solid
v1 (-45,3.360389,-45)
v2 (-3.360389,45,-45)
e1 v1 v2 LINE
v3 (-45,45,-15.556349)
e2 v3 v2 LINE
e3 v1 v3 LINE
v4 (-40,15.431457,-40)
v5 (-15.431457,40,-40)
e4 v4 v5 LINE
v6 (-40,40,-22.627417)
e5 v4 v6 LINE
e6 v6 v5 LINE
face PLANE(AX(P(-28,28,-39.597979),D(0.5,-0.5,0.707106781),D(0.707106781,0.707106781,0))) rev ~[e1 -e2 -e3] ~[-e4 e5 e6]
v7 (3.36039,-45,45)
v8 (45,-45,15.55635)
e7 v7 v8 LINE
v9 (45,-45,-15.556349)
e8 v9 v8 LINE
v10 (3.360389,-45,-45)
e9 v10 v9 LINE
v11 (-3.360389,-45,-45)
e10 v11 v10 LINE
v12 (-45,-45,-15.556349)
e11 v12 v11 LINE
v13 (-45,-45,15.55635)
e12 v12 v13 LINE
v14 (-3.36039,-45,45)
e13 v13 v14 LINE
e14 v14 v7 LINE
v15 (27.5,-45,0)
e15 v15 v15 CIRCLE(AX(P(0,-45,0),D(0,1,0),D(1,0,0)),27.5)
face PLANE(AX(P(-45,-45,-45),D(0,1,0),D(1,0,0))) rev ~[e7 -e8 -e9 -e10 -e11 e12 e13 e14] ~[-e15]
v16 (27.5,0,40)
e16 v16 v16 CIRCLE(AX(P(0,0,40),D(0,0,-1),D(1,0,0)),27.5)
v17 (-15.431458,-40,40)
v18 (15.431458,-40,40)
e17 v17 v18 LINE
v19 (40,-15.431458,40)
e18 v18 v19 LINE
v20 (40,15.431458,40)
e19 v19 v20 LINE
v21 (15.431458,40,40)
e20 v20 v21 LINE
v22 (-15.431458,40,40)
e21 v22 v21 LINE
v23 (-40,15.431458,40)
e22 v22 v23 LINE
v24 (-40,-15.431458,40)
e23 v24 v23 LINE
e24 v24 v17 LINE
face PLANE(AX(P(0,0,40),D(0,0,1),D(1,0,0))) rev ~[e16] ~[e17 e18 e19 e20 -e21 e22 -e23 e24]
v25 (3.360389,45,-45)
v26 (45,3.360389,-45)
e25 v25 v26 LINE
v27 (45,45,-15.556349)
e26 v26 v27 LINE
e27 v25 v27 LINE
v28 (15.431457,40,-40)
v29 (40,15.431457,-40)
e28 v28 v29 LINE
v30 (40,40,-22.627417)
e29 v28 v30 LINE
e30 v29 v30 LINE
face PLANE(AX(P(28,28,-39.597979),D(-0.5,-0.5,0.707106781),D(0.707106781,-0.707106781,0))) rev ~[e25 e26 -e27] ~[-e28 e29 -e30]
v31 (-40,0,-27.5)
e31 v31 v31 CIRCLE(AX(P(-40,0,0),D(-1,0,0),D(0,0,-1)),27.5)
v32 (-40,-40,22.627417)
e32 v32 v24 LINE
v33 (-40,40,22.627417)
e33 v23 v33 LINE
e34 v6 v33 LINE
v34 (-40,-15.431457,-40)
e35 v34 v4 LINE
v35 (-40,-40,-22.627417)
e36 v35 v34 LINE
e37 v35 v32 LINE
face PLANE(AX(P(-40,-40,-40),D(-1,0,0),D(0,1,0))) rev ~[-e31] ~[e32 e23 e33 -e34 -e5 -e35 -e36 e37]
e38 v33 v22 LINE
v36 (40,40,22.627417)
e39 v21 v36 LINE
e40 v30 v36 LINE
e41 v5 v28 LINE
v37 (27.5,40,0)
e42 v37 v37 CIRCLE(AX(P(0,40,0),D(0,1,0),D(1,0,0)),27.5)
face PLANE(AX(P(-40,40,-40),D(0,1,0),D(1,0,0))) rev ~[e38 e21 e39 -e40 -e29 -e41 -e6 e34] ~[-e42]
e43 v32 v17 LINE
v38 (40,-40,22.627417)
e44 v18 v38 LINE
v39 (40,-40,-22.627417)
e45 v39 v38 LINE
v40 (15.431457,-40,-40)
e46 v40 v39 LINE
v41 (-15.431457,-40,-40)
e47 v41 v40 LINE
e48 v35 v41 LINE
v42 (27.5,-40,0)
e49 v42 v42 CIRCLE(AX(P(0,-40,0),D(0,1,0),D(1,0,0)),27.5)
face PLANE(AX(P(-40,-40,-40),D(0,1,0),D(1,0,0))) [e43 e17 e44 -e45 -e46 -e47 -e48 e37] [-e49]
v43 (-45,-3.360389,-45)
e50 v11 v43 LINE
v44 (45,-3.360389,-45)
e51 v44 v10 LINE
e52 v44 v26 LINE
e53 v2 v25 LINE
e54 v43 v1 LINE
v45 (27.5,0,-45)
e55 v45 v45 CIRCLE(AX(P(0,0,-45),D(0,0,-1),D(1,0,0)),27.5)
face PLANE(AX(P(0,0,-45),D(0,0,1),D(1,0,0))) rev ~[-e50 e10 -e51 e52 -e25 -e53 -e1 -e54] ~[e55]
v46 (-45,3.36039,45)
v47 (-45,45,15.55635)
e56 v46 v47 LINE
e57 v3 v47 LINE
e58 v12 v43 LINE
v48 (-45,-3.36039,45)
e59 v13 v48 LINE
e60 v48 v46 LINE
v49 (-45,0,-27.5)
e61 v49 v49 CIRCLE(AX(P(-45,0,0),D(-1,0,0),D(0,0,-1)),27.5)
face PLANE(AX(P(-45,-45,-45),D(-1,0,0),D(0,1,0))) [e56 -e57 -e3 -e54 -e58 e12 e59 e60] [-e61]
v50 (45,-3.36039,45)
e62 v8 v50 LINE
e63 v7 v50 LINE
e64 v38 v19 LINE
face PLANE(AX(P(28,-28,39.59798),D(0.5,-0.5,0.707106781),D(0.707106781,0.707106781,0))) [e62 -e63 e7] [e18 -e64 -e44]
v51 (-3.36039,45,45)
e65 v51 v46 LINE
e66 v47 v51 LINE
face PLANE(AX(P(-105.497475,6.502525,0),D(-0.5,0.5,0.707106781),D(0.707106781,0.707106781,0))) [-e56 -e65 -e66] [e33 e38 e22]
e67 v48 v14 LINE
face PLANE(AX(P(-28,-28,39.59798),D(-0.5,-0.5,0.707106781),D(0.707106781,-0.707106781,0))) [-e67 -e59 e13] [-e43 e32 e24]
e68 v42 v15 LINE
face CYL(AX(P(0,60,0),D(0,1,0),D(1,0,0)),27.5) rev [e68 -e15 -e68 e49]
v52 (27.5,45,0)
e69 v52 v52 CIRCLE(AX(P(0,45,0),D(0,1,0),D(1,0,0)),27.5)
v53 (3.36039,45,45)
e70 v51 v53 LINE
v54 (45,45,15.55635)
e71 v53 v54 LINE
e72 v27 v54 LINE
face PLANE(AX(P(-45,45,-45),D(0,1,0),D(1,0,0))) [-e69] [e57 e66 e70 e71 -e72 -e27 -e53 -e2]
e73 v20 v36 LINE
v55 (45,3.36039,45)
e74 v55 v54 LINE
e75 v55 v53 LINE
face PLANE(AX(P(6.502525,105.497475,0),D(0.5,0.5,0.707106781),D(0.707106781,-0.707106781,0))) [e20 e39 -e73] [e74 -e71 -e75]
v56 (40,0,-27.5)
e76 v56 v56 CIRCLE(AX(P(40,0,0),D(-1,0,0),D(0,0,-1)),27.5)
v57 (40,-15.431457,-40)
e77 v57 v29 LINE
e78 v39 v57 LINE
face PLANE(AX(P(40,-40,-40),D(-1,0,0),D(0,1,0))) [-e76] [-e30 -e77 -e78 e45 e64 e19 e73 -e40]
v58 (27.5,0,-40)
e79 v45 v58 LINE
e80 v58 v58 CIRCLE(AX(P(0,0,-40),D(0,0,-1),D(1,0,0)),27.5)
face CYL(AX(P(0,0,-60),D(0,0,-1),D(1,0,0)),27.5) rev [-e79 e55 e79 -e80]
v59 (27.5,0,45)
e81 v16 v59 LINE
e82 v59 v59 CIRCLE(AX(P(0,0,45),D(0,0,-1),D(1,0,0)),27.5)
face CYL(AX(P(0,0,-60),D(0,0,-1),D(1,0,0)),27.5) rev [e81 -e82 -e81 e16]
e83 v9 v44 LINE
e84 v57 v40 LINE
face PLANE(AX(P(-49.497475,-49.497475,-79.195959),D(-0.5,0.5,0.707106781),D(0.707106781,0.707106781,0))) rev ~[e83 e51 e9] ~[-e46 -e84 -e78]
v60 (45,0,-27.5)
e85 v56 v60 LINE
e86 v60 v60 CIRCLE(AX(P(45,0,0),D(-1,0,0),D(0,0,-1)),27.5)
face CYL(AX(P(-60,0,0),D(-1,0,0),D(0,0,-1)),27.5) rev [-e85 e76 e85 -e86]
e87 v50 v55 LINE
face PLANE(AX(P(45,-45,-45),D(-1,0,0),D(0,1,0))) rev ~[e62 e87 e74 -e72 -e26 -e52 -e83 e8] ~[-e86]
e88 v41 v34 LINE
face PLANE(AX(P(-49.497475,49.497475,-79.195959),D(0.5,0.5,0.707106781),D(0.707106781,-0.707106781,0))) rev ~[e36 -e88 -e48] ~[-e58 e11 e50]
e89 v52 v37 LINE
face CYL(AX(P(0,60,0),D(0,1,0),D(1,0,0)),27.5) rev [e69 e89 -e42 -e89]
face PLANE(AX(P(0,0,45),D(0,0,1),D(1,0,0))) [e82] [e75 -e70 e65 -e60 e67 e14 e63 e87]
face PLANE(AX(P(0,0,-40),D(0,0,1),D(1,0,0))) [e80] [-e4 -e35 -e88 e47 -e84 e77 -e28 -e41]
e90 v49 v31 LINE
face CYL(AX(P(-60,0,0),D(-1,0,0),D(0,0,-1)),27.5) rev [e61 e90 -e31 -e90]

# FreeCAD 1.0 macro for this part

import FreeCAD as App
import Part
import Sketcher

V = App.Vector
Q = App.Units.Quantity

doc = App.newDocument("Part")
body = doc.addObject("PartDesign::Body", "Body")

# Sketch on XY plane
sketch1 = doc.addObject("Sketcher::SketchObject", "Sketch")
body.addObject(sketch1)
sketch1.AttachmentSupport = (doc.XY_Plane, [""])
sketch1.MapMode = "FlatFace"
sketch1.addGeometry([
    Part.LineSegment(V(0, 112, 0), V(0, 0, 0)),
    Part.LineSegment(V(0, 0, 0), V(140, 0, 0)),
    Part.LineSegment(V(140, 0, 0), V(140, 112, 0)),
    Part.LineSegment(V(140, 112, 0), V(0, 112, 0)),
], False)
sketch1.addConstraint([
    Sketcher.Constraint("Coincident", 0, 2, 1, 1),
    Sketcher.Constraint("Coincident", 1, 2, 2, 1),
    Sketcher.Constraint("Coincident", 2, 2, 3, 1),
    Sketcher.Constraint("Coincident", 3, 2, 0, 1),
    Sketcher.Constraint("Vertical", 0),
    Sketcher.Constraint("Horizontal", 1),
    Sketcher.Constraint("Vertical", 2),
    Sketcher.Constraint("Horizontal", 3),
    Sketcher.Constraint("Coincident", 0, 2, -1, 1),
    Sketcher.Constraint("DistanceX", 1, 1, 1, 2, Q("140 mm")),
    Sketcher.Constraint("DistanceY", 0, 2, 0, 1, Q("112 mm")),
])
pad1 = doc.addObject("PartDesign::Pad", "Pad")
body.addObject(pad1)
pad1.Profile = sketch1
pad1.Length = 112
body2 = doc.addObject("PartDesign::Body", "Body001")
doc.recompute()

body.Placement = App.Placement(V(0, 0, 0), App.Rotation(V(1, 0, 0), 45))
boolean = doc.addObject("PartDesign::Boolean", "Boolean")
body2.addObject(boolean)
boolean.Type = "Fuse"
boolean.addObjects([body])
body3 = doc.addObject("PartDesign::Body", "Body002")
doc.recompute()

body2.Placement = App.Placement(V(-49.497475, 49.497475, -79.195959), App.Rotation(V(0, 0, 1), 315))
boolean2 = doc.addObject("PartDesign::Boolean", "Boolean001")
body3.addObject(boolean2)
boolean2.Type = "Fuse"
boolean2.addObjects([body2])
body4 = doc.addObject("PartDesign::Body", "Body003")

# Sketch on XY plane
sketch2 = doc.addObject("Sketcher::SketchObject", "Sketch001")
body4.addObject(sketch2)
sketch2.AttachmentSupport = (doc.getObject("XY_Plane003"), [""])
sketch2.MapMode = "FlatFace"
sketch2.addGeometry([
    Part.LineSegment(V(0, 180, 0), V(0, 0, 0)),
    Part.LineSegment(V(0, 0, 0), V(180, 0, 0)),
    Part.LineSegment(V(180, 0, 0), V(180, 180, 0)),
    Part.LineSegment(V(180, 180, 0), V(0, 180, 0)),
], False)
sketch2.addConstraint([
    Sketcher.Constraint("Coincident", 0, 2, 1, 1),
    Sketcher.Constraint("Coincident", 1, 2, 2, 1),
    Sketcher.Constraint("Coincident", 2, 2, 3, 1),
    Sketcher.Constraint("Coincident", 3, 2, 0, 1),
    Sketcher.Constraint("Vertical", 0),
    Sketcher.Constraint("Horizontal", 1),
    Sketcher.Constraint("Vertical", 2),
    Sketcher.Constraint("Horizontal", 3),
    Sketcher.Constraint("Coincident", 0, 2, -1, 1),
    Sketcher.Constraint("Equal", 3, 0),
    Sketcher.Constraint("DistanceX", 1, 1, 1, 2, Q("180 mm")),
])
pad2 = doc.addObject("PartDesign::Pad", "Pad001")
body4.addObject(pad2)
pad2.Profile = sketch2
pad2.Length = 180
body5 = doc.addObject("PartDesign::Body", "Body004")
doc.recompute()

body4.Placement = App.Placement(V(0, 0, 0), App.Rotation(V(1, 0, 0), 45))
boolean3 = doc.addObject("PartDesign::Boolean", "Boolean002")
body5.addObject(boolean3)
boolean3.Type = "Fuse"
boolean3.addObjects([body4])
body6 = doc.addObject("PartDesign::Body", "Body005")
doc.recompute()

body5.Placement = App.Placement(V(-63.63961, 63.63961, -127.279221), App.Rotation(V(0, 0, 1), 315))
boolean4 = doc.addObject("PartDesign::Boolean", "Boolean003")
body6.addObject(boolean4)
boolean4.Type = "Fuse"
boolean4.addObjects([body5])
doc.recompute()

boolean5 = doc.addObject("PartDesign::Boolean", "Boolean004")
body6.addObject(boolean5)
boolean5.Type = "Cut"
boolean5.addObjects([body3])
body7 = doc.addObject("PartDesign::Body", "Body006")

# Sketch on XY plane
sketch3 = doc.addObject("Sketcher::SketchObject", "Sketch002")
body7.addObject(sketch3)
sketch3.AttachmentSupport = (doc.getObject("XY_Plane006"), [""])
sketch3.MapMode = "FlatFace"
sketch3.addGeometry([
    Part.LineSegment(V(0, 112, 0), V(0, 0, 0)),
    Part.LineSegment(V(0, 0, 0), V(140, 0, 0)),
    Part.LineSegment(V(140, 0, 0), V(140, 112, 0)),
    Part.LineSegment(V(140, 112, 0), V(0, 112, 0)),
], False)
sketch3.addConstraint([
    Sketcher.Constraint("Coincident", 0, 2, 1, 1),
    Sketcher.Constraint("Coincident", 1, 2, 2, 1),
    Sketcher.Constraint("Coincident", 2, 2, 3, 1),
    Sketcher.Constraint("Coincident", 3, 2, 0, 1),
    Sketcher.Constraint("Vertical", 0),
    Sketcher.Constraint("Horizontal", 1),
    Sketcher.Constraint("Vertical", 2),
    Sketcher.Constraint("Horizontal", 3),
    Sketcher.Constraint("Coincident", 0, 2, -1, 1),
    Sketcher.Constraint("DistanceX", 1, 1, 1, 2, Q("140 mm")),
    Sketcher.Constraint("DistanceY", 0, 2, 0, 1, Q("112 mm")),
])
pad3 = doc.addObject("PartDesign::Pad", "Pad002")
body7.addObject(pad3)
pad3.Profile = sketch3
pad3.Length = 112
body8 = doc.addObject("PartDesign::Body", "Body007")
doc.recompute()

body7.Placement = App.Placement(V(0, 0, 0), App.Rotation(V(1, 0, 0), 45))
boolean6 = doc.addObject("PartDesign::Boolean", "Boolean005")
body8.addObject(boolean6)
boolean6.Type = "Fuse"
boolean6.addObjects([body7])
body9 = doc.addObject("PartDesign::Body", "Body008")
doc.recompute()

body8.Placement = App.Placement(V(-49.497475, -49.497475, -79.195959), App.Rotation(V(0, 0, 1), 45))
boolean7 = doc.addObject("PartDesign::Boolean", "Boolean006")
body9.addObject(boolean7)
boolean7.Type = "Fuse"
boolean7.addObjects([body8])
body10 = doc.addObject("PartDesign::Body", "Body009")

# Sketch on XY plane
sketch4 = doc.addObject("Sketcher::SketchObject", "Sketch003")
body10.addObject(sketch4)
sketch4.AttachmentSupport = (doc.getObject("XY_Plane009"), [""])
sketch4.MapMode = "FlatFace"
sketch4.addGeometry([
    Part.LineSegment(V(0, 180, 0), V(0, 0, 0)),
    Part.LineSegment(V(0, 0, 0), V(180, 0, 0)),
    Part.LineSegment(V(180, 0, 0), V(180, 180, 0)),
    Part.LineSegment(V(180, 180, 0), V(0, 180, 0)),
], False)
sketch4.addConstraint([
    Sketcher.Constraint("Coincident", 0, 2, 1, 1),
    Sketcher.Constraint("Coincident", 1, 2, 2, 1),
    Sketcher.Constraint("Coincident", 2, 2, 3, 1),
    Sketcher.Constraint("Coincident", 3, 2, 0, 1),
    Sketcher.Constraint("Vertical", 0),
    Sketcher.Constraint("Horizontal", 1),
    Sketcher.Constraint("Vertical", 2),
    Sketcher.Constraint("Horizontal", 3),
    Sketcher.Constraint("Coincident", 0, 2, -1, 1),
    Sketcher.Constraint("Equal", 3, 0),
    Sketcher.Constraint("DistanceX", 1, 1, 1, 2, Q("180 mm")),
])
pad4 = doc.addObject("PartDesign::Pad", "Pad003")
body10.addObject(pad4)
pad4.Profile = sketch4
pad4.Length = 180
body11 = doc.addObject("PartDesign::Body", "Body010")
doc.recompute()

body10.Placement = App.Placement(V(0, 0, 0), App.Rotation(V(1, 0, 0), 45))
boolean8 = doc.addObject("PartDesign::Boolean", "Boolean007")
body11.addObject(boolean8)
boolean8.Type = "Fuse"
boolean8.addObjects([body10])
body12 = doc.addObject("PartDesign::Body", "Body011")
doc.recompute()

body11.Placement = App.Placement(V(-63.63961, -63.63961, -127.279221), App.Rotation(V(0, 0, 1), 45))
boolean9 = doc.addObject("PartDesign::Boolean", "Boolean008")
body12.addObject(boolean9)
boolean9.Type = "Fuse"
boolean9.addObjects([body11])
doc.recompute()

boolean10 = doc.addObject("PartDesign::Boolean", "Boolean009")
body12.addObject(boolean10)
boolean10.Type = "Cut"
boolean10.addObjects([body9])
body13 = doc.addObject("PartDesign::Body", "Body012")

# Sketch on XY plane
sketch5 = doc.addObject("Sketcher::SketchObject", "Sketch004")
body13.addObject(sketch5)
sketch5.AttachmentSupport = (doc.getObject("XY_Plane012"), [""])
sketch5.MapMode = "FlatFace"
sketch5.AttachmentOffset = App.Placement(V(0, 0, -60), App.Rotation())
sketch5.addGeometry(Part.Circle(V(0, 0, 0), V(0, 0, 1), 28), False)
sketch5.addConstraint([
    Sketcher.Constraint("Coincident", 0, 3, -1, 1),
    Sketcher.Constraint("Diameter", 0, Q("55 mm")),
])
pad5 = doc.addObject("PartDesign::Pad", "Pad004")
body13.addObject(pad5)
pad5.Profile = sketch5
pad5.Length = 120
body14 = doc.addObject("PartDesign::Body", "Body013")

# Sketch on XY plane
sketch6 = doc.addObject("Sketcher::SketchObject", "Sketch005")
body14.addObject(sketch6)
sketch6.AttachmentSupport = (doc.getObject("XY_Plane013"), [""])
sketch6.MapMode = "FlatFace"
sketch6.addGeometry(Part.Circle(V(0, 0, 0), V(0, 0, 1), 28), False)
sketch6.addConstraint([
    Sketcher.Constraint("Coincident", 0, 3, -1, 1),
    Sketcher.Constraint("Diameter", 0, Q("55 mm")),
])
pad6 = doc.addObject("PartDesign::Pad", "Pad005")
body14.addObject(pad6)
pad6.Profile = sketch6
pad6.Length = 120
body15 = doc.addObject("PartDesign::Body", "Body014")
doc.recompute()

body14.Placement = App.Placement(V(0, 0, 0), App.Rotation(V(1, 0, 0), 90))
boolean11 = doc.addObject("PartDesign::Boolean", "Boolean010")
body15.addObject(boolean11)
boolean11.Type = "Fuse"
boolean11.addObjects([body14])
body16 = doc.addObject("PartDesign::Body", "Body015")
doc.recompute()

body15.Placement = App.Placement(V(0, 60, 0), App.Rotation(V(0, 0, 1), 0))
boolean12 = doc.addObject("PartDesign::Boolean", "Boolean011")
body16.addObject(boolean12)
boolean12.Type = "Fuse"
boolean12.addObjects([body15])
body17 = doc.addObject("PartDesign::Body", "Body016")

# Sketch on XY plane
sketch7 = doc.addObject("Sketcher::SketchObject", "Sketch006")
body17.addObject(sketch7)
sketch7.AttachmentSupport = (doc.getObject("XY_Plane016"), [""])
sketch7.MapMode = "FlatFace"
sketch7.addGeometry(Part.Circle(V(0, 0, 0), V(0, 0, 1), 28), False)
sketch7.addConstraint([
    Sketcher.Constraint("Coincident", 0, 3, -1, 1),
    Sketcher.Constraint("Diameter", 0, Q("55 mm")),
])
pad7 = doc.addObject("PartDesign::Pad", "Pad006")
body17.addObject(pad7)
pad7.Profile = sketch7
pad7.Length = 120
body18 = doc.addObject("PartDesign::Body", "Body017")
doc.recompute()

body17.Placement = App.Placement(V(0, 0, 0), App.Rotation(V(0, 1, 0), 90))
boolean13 = doc.addObject("PartDesign::Boolean", "Boolean012")
body18.addObject(boolean13)
boolean13.Type = "Fuse"
boolean13.addObjects([body17])
body19 = doc.addObject("PartDesign::Body", "Body018")
doc.recompute()

body18.Placement = App.Placement(V(-60, 0, 0), App.Rotation(V(0, 0, 1), 0))
boolean14 = doc.addObject("PartDesign::Boolean", "Boolean013")
body19.addObject(boolean14)
boolean14.Type = "Fuse"
boolean14.addObjects([body18])
body20 = doc.addObject("PartDesign::Body", "Body019")

# Sketch on XY plane
sketch8 = doc.addObject("Sketcher::SketchObject", "Sketch007")
body20.addObject(sketch8)
sketch8.AttachmentSupport = (doc.getObject("XY_Plane019"), [""])
sketch8.MapMode = "FlatFace"
sketch8.AttachmentOffset = App.Placement(V(0, 0, -40), App.Rotation())
sketch8.addGeometry([
    Part.LineSegment(V(-40, 40, 0), V(-40, -40, 0)),
    Part.LineSegment(V(-40, -40, 0), V(40, -40, 0)),
    Part.LineSegment(V(40, -40, 0), V(40, 40, 0)),
    Part.LineSegment(V(40, 40, 0), V(-40, 40, 0)),
], False)
sketch8.addConstraint([
    Sketcher.Constraint("Coincident", 0, 2, 1, 1),
    Sketcher.Constraint("Coincident", 1, 2, 2, 1),
    Sketcher.Constraint("Coincident", 2, 2, 3, 1),
    Sketcher.Constraint("Coincident", 3, 2, 0, 1),
    Sketcher.Constraint("Vertical", 0),
    Sketcher.Constraint("Horizontal", 1),
    Sketcher.Constraint("Vertical", 2),
    Sketcher.Constraint("Horizontal", 3),
    Sketcher.Constraint("Symmetric", 0, 2, 2, 2, -1, 1),
    Sketcher.Constraint("Equal", 3, 0),
    Sketcher.Constraint("DistanceX", 1, 1, 1, 2, Q("80 mm")),
])
pad8 = doc.addObject("PartDesign::Pad", "Pad007")
body20.addObject(pad8)
pad8.Profile = sketch8
pad8.Length = 80
doc.recompute()

boolean15 = doc.addObject("PartDesign::Boolean", "Boolean014")
body20.addObject(boolean15)
boolean15.Type = "Fuse"
boolean15.addObjects([body13])
doc.recompute()

boolean16 = doc.addObject("PartDesign::Boolean", "Boolean015")
body20.addObject(boolean16)
boolean16.Type = "Fuse"
boolean16.addObjects([body16])
doc.recompute()

boolean17 = doc.addObject("PartDesign::Boolean", "Boolean016")
body20.addObject(boolean17)
boolean17.Type = "Fuse"
boolean17.addObjects([body19])
body21 = doc.addObject("PartDesign::Body", "Body020")

# Sketch on XY plane
sketch9 = doc.addObject("Sketcher::SketchObject", "Sketch008")
body21.addObject(sketch9)
sketch9.AttachmentSupport = (doc.getObject("XY_Plane020"), [""])
sketch9.MapMode = "FlatFace"
sketch9.AttachmentOffset = App.Placement(V(0, 0, -45), App.Rotation())
sketch9.addGeometry([
    Part.LineSegment(V(-45, 45, 0), V(-45, -45, 0)),
    Part.LineSegment(V(-45, -45, 0), V(45, -45, 0)),
    Part.LineSegment(V(45, -45, 0), V(45, 45, 0)),
    Part.LineSegment(V(45, 45, 0), V(-45, 45, 0)),
], False)
sketch9.addConstraint([
    Sketcher.Constraint("Coincident", 0, 2, 1, 1),
    Sketcher.Constraint("Coincident", 1, 2, 2, 1),
    Sketcher.Constraint("Coincident", 2, 2, 3, 1),
    Sketcher.Constraint("Coincident", 3, 2, 0, 1),
    Sketcher.Constraint("Vertical", 0),
    Sketcher.Constraint("Horizontal", 1),
    Sketcher.Constraint("Vertical", 2),
    Sketcher.Constraint("Horizontal", 3),
    Sketcher.Constraint("Symmetric", 0, 2, 2, 2, -1, 1),
    Sketcher.Constraint("Equal", 3, 0),
    Sketcher.Constraint("DistanceX", 1, 1, 1, 2, Q("90 mm")),
])
pad9 = doc.addObject("PartDesign::Pad", "Pad008")
body21.addObject(pad9)
pad9.Profile = sketch9
pad9.Length = 90
doc.recompute()

boolean18 = doc.addObject("PartDesign::Boolean", "Boolean017")
body21.addObject(boolean18)
boolean18.Type = "Cut"
boolean18.addObjects([body20])
doc.recompute()

boolean19 = doc.addObject("PartDesign::Boolean", "Boolean018")
body21.addObject(boolean19)
boolean19.Type = "Cut"
boolean19.addObjects([body12])
doc.recompute()

boolean20 = doc.addObject("PartDesign::Boolean", "Boolean019")
body21.addObject(boolean20)
boolean20.Type = "Cut"
boolean20.addObjects([body6])

doc.recompute()
